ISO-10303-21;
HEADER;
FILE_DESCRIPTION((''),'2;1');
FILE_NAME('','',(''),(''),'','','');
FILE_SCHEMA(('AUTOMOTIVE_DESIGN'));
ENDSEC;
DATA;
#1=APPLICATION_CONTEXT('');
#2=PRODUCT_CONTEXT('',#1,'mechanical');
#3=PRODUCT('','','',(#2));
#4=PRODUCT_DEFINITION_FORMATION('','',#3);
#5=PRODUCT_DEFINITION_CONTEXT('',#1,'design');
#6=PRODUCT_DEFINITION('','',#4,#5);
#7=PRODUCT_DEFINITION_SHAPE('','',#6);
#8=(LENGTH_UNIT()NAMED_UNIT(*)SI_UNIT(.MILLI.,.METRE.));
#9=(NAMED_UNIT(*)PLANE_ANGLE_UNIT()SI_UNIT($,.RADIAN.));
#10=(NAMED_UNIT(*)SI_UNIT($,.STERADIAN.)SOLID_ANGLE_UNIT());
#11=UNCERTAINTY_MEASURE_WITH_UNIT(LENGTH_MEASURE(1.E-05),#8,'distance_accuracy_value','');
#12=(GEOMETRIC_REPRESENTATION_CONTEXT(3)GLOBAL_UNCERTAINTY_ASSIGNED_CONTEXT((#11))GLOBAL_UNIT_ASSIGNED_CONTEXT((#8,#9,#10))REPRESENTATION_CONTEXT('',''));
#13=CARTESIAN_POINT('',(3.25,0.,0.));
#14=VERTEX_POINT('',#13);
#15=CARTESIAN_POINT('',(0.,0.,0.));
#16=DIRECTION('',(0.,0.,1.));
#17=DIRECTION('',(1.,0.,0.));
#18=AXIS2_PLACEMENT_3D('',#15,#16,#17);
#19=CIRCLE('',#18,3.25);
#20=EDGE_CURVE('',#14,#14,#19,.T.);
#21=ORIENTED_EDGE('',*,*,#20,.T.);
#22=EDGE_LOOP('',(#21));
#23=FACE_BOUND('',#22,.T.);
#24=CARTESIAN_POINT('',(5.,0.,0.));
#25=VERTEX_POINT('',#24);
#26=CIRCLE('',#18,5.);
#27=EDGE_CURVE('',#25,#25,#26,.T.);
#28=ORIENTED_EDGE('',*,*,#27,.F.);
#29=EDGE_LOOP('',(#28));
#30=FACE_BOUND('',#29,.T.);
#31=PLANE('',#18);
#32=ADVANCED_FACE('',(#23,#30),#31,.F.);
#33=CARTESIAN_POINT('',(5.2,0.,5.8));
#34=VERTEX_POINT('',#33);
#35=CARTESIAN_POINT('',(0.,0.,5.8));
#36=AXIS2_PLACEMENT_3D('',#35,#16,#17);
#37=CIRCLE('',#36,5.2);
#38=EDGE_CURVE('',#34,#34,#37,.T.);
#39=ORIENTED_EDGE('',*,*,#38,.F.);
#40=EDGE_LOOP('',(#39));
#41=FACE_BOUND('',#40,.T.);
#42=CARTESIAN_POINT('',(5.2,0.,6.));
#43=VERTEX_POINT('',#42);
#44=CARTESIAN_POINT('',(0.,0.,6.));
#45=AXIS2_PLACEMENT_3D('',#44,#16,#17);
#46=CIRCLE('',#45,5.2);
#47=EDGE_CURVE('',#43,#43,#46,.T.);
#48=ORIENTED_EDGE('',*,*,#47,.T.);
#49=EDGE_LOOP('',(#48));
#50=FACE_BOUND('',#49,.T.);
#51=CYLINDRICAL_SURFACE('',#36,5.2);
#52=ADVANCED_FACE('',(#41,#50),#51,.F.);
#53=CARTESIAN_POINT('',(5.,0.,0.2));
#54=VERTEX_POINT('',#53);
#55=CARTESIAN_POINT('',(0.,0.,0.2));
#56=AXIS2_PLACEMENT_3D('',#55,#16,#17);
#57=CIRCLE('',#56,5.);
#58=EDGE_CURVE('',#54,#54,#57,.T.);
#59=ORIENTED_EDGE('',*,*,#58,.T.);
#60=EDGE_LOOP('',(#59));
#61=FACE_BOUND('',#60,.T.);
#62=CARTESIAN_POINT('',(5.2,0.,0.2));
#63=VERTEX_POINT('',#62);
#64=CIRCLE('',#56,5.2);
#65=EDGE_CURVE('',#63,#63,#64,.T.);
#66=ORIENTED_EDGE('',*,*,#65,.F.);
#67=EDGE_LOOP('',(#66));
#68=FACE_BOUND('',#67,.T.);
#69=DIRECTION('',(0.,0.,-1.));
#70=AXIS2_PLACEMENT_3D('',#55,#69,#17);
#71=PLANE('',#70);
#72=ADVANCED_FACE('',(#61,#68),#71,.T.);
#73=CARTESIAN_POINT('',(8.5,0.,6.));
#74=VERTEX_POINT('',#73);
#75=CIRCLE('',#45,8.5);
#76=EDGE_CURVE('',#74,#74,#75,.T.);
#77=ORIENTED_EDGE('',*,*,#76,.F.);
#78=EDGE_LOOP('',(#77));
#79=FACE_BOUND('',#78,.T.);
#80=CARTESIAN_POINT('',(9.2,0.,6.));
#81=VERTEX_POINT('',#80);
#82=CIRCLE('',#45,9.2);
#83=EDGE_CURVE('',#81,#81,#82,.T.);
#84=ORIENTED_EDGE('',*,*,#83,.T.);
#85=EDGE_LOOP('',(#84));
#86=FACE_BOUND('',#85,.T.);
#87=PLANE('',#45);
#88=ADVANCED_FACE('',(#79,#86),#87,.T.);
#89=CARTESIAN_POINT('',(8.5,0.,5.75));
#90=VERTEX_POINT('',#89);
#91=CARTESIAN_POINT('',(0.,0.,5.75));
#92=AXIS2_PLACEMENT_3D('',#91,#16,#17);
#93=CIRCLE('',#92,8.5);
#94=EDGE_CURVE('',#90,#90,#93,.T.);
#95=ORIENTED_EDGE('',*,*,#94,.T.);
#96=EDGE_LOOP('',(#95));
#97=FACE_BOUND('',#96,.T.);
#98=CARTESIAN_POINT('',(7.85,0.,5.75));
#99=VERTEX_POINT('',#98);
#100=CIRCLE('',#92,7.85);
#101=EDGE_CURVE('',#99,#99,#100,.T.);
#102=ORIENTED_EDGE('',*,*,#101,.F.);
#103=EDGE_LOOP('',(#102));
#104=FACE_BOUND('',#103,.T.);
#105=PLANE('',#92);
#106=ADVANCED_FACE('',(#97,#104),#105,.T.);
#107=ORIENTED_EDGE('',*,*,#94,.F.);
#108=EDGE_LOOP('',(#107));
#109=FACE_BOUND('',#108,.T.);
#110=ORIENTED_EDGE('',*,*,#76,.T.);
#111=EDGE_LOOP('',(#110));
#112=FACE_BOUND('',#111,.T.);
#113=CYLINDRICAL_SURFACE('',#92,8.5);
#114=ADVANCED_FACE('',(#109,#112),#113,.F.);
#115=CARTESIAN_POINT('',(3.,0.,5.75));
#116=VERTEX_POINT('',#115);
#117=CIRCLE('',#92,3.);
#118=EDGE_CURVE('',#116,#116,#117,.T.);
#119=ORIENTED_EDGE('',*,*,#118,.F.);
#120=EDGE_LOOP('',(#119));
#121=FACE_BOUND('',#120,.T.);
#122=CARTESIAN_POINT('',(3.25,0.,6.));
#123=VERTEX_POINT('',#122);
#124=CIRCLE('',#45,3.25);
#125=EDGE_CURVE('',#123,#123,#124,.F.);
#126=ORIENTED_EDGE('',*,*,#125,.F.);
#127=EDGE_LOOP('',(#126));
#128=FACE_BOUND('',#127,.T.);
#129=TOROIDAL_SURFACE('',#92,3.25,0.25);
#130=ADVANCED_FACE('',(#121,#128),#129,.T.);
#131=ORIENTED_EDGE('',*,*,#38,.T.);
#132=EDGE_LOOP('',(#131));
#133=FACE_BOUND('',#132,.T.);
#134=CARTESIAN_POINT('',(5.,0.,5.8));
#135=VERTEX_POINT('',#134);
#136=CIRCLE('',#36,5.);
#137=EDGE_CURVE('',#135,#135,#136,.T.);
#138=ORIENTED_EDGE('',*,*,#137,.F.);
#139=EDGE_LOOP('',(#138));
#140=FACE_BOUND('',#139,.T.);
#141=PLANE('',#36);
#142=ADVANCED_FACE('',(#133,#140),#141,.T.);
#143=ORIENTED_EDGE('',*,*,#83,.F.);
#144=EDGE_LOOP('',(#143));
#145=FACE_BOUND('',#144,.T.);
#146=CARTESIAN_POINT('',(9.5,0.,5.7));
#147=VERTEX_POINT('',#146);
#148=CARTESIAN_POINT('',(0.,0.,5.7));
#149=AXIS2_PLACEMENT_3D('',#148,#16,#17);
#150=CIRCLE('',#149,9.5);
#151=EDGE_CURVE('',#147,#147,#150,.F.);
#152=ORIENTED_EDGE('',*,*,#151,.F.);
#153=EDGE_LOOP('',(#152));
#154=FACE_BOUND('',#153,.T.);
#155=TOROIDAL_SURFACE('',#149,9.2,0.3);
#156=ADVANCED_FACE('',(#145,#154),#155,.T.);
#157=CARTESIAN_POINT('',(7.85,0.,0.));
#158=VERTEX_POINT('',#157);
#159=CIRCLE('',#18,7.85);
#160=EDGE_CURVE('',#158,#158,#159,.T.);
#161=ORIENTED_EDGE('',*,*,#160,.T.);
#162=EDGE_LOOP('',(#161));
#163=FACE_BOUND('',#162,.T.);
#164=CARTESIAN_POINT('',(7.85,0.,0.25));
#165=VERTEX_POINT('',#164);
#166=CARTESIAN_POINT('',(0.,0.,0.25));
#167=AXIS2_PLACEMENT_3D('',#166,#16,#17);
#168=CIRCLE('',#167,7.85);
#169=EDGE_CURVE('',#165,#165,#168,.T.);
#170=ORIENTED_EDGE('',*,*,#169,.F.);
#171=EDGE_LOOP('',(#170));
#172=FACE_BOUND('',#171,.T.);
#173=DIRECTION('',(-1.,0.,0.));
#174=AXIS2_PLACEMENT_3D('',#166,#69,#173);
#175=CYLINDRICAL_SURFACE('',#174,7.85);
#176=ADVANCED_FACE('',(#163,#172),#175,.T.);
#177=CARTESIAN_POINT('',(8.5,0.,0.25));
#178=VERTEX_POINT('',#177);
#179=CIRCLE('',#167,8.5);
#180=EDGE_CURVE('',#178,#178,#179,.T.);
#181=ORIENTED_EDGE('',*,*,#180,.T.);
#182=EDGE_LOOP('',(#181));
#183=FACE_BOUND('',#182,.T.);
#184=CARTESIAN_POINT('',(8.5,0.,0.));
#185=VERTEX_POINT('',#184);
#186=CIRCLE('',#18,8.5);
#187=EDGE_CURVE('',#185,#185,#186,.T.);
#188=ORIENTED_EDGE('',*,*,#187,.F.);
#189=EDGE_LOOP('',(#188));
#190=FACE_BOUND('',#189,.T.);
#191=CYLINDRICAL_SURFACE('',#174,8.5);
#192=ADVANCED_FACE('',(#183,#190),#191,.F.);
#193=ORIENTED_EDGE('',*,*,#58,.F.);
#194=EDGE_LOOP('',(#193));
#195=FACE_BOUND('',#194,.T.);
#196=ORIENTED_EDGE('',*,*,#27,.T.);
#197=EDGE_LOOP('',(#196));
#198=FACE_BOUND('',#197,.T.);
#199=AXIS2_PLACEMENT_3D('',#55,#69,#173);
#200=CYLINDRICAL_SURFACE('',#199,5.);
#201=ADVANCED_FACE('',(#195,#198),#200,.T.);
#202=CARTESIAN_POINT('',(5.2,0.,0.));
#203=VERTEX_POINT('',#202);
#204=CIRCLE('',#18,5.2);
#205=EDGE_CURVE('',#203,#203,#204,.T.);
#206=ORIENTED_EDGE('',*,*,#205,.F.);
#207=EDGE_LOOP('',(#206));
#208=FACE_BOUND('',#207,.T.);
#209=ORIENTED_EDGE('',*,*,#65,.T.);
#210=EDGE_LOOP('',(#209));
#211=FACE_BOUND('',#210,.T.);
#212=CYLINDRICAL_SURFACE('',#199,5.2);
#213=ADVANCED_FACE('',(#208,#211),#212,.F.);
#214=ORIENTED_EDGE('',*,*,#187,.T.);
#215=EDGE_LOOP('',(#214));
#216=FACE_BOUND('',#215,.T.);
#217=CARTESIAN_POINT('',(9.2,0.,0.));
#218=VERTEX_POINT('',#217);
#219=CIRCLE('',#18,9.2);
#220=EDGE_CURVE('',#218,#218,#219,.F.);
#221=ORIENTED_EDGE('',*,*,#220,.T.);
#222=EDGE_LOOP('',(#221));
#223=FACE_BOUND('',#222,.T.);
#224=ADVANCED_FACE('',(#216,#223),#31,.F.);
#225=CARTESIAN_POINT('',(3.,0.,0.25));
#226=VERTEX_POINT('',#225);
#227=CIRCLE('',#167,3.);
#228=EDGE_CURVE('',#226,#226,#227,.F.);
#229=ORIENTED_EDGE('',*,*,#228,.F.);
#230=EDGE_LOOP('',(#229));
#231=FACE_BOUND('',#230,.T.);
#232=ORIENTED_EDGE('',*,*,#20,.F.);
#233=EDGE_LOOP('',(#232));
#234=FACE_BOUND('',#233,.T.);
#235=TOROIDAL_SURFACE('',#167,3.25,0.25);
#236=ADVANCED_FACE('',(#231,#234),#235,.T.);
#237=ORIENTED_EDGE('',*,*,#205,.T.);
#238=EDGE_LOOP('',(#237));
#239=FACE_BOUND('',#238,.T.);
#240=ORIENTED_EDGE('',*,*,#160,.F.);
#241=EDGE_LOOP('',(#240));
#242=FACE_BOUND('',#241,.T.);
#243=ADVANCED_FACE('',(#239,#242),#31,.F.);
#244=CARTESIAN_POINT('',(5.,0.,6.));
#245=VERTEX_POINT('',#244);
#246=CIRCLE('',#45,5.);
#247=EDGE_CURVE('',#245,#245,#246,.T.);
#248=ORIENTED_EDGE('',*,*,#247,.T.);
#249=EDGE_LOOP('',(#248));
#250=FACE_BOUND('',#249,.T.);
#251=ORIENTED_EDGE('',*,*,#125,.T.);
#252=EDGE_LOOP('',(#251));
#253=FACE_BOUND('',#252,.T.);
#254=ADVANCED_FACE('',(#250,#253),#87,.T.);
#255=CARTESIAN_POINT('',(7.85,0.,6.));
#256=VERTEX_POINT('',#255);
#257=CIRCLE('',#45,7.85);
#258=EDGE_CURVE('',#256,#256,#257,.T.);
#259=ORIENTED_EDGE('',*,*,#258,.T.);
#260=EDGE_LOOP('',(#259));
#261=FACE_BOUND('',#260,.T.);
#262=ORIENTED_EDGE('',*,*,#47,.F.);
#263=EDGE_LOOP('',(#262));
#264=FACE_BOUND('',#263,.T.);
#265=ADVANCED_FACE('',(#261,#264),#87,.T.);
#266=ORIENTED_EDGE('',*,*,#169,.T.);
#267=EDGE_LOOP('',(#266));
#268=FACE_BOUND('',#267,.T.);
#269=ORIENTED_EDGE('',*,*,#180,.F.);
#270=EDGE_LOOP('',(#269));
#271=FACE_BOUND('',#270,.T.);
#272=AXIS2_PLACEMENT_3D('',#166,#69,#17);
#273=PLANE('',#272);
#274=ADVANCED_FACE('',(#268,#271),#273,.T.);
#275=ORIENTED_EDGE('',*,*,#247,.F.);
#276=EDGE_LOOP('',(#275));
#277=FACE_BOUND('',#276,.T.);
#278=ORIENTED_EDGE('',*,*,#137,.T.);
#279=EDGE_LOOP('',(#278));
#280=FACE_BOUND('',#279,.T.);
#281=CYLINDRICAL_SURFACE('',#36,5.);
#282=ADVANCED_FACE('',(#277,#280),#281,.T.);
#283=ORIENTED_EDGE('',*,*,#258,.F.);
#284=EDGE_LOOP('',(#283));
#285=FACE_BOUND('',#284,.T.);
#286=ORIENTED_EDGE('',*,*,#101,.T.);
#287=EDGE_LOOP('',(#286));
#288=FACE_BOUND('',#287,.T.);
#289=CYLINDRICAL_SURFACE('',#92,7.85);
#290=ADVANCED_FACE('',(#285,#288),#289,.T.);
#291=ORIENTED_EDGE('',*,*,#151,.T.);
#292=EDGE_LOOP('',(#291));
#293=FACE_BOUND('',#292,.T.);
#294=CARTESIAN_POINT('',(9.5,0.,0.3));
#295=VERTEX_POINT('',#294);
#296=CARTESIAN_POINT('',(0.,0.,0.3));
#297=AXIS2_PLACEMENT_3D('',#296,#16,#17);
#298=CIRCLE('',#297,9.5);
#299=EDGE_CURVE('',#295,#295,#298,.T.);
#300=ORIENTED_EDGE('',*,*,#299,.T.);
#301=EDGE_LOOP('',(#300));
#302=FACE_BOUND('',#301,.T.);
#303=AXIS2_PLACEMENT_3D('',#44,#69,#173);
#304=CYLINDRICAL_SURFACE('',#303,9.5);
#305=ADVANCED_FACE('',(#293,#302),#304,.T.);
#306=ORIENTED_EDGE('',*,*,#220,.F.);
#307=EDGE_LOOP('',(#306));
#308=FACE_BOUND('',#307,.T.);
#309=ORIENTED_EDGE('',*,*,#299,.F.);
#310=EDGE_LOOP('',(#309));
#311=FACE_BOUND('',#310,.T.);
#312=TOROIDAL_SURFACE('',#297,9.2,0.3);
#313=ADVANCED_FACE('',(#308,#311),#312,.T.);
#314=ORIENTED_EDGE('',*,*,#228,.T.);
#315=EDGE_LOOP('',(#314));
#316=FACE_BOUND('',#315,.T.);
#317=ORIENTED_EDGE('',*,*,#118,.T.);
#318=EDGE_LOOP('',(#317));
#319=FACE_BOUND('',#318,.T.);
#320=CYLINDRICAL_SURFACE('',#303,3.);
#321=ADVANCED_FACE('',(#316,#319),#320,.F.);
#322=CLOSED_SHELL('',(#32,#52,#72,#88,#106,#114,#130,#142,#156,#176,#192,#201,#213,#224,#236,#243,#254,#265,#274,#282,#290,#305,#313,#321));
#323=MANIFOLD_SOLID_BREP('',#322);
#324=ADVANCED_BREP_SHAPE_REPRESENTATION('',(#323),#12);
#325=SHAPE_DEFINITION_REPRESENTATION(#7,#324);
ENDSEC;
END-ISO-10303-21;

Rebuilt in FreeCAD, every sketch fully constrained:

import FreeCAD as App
import Part
import Sketcher
from FreeCAD import Vector


def edges_at(feature, points):
    """Names of the edges that pass closest to the given points."""
    edges = feature.Shape.Edges
    near = lambda p: min(range(len(edges)), key=lambda i: edges[i].distToShape(Part.Vertex(*p))[0])
    return sorted({f"Edge{near(p) + 1}" for p in points})

doc = App.newDocument("Part")
params = doc.addObject("Spreadsheet::Sheet", "Params")
for row, (alias, value) in enumerate([
    ("sketch1_diameter", "19 mm"),
    ("sketch1_diameter2", "6 mm"),
    ("pad1_length", "6 mm"),
    ("sketch2_diameter", "10 mm"),
    ("sketch2_diameter2", "10.4 mm"),
    ("pocket1_length", "0.2 mm"),
    ("sketch3_diameter", "17 mm"),
    ("sketch3_diameter2", "15.7 mm"),
    ("pocket2_length", "0.25 mm"),
    ("fillet_radius", "0.3 mm"),
    ("fillet2_radius", "0.25 mm"),
], start=1):
    params.set(f"A{row}", alias)
    params.set(f"B{row}", "=" + value)
    params.setAlias(f"B{row}", alias)

body = doc.addObject("PartDesign::Body", "Body")

sketch1 = body.newObject("Sketcher::SketchObject", "Sketch")
sketch1.AttachmentSupport = (doc.getObject("XY_Plane"), [""])
sketch1.MapMode = "FlatFace"
sketch1.addGeometry(Part.Circle(Vector(0, 0, 0), Vector(0, 0, 1), 9.5), False)
sketch1.addGeometry(Part.Circle(Vector(0, 0, 0), Vector(0, 0, 1), 3), False)
sketch1.addConstraint(Sketcher.Constraint("Coincident", 0, 3, -1, 1))
sketch1.addConstraint(Sketcher.Constraint("Coincident", 1, 3, -1, 1))
sketch1.addConstraint(Sketcher.Constraint("Diameter", 0, 19.0))
sketch1.addConstraint(Sketcher.Constraint("Diameter", 1, 6.0))
sketch1.setExpression("Constraints[2]", "Params.sketch1_diameter")
sketch1.setExpression("Constraints[3]", "Params.sketch1_diameter2")
pad1 = body.newObject("PartDesign::Pad", "Pad")
pad1.Profile = sketch1
pad1.setExpression("Length", "Params.pad1_length")

sketch2 = body.newObject("Sketcher::SketchObject", "Sketch001")
sketch2.AttachmentSupport = (doc.getObject("XY_Plane"), [""])
sketch2.MapMode = "FlatFace"
sketch2.AttachmentOffset = App.Placement(Vector(0, 0, 6), App.Rotation())
sketch2.addGeometry(Part.Circle(Vector(0, 0, 0), Vector(0, 0, 1), 5), False)
sketch2.addGeometry(Part.Circle(Vector(0, 0, 0), Vector(0, 0, 1), 5), False)
sketch2.addConstraint(Sketcher.Constraint("Coincident", 0, 3, -1, 1))
sketch2.addConstraint(Sketcher.Constraint("Coincident", 1, 3, -1, 1))
sketch2.addConstraint(Sketcher.Constraint("Diameter", 1, 10.0))
sketch2.addConstraint(Sketcher.Constraint("Diameter", 0, 10.4))
sketch2.setExpression("Constraints[2]", "Params.sketch2_diameter")
sketch2.setExpression("Constraints[3]", "Params.sketch2_diameter2")
pocket1 = body.newObject("PartDesign::Pocket", "Pocket")
pocket1.Profile = sketch2
pocket1.setExpression("Length", "Params.pocket1_length")

sketch3 = body.newObject("Sketcher::SketchObject", "Sketch002")
sketch3.AttachmentSupport = (doc.getObject("XY_Plane"), [""])
sketch3.MapMode = "FlatFace"
sketch3.AttachmentOffset = App.Placement(Vector(0, 0, 6), App.Rotation())
sketch3.addGeometry(Part.Circle(Vector(0, 0, 0), Vector(0, 0, 1), 8), False)
sketch3.addGeometry(Part.Circle(Vector(0, 0, 0), Vector(0, 0, 1), 8), False)
sketch3.addConstraint(Sketcher.Constraint("Coincident", 0, 3, -1, 1))
sketch3.addConstraint(Sketcher.Constraint("Coincident", 1, 3, -1, 1))
sketch3.addConstraint(Sketcher.Constraint("Diameter", 0, 17.0))
sketch3.addConstraint(Sketcher.Constraint("Diameter", 1, 15.7))
sketch3.setExpression("Constraints[2]", "Params.sketch3_diameter")
sketch3.setExpression("Constraints[3]", "Params.sketch3_diameter2")
pocket2 = body.newObject("PartDesign::Pocket", "Pocket001")
pocket2.Profile = sketch3
pocket2.setExpression("Length", "Params.pocket2_length")
doc.recompute()

datumplane = body.newObject("PartDesign::Plane", "DatumPlane")
datumplane.AttachmentSupport = (doc.getObject("XY_Plane"), [""])
datumplane.MapMode = "FlatFace"
datumplane.AttachmentOffset = App.Placement(Vector(0, 0, 3), App.Rotation())
mirrored = body.newObject("PartDesign::Mirrored", "Mirrored")
mirrored.Originals = [pocket1, pocket2]
mirrored.MirrorPlane = (datumplane, [""])
body.Tip = mirrored
doc.recompute()

fillet = body.newObject("PartDesign::Fillet", "Fillet")
fillet.Base = (mirrored, edges_at(mirrored, [(-9.5, 0, 0), (-9.5, 0, 6)]))
fillet.setExpression("Radius", "Params.fillet_radius")
doc.recompute()

fillet2 = body.newObject("PartDesign::Fillet", "Fillet001")
fillet2.Base = (fillet, edges_at(fillet, [(-3, 0, 0), (-3, 0, 6)]))
fillet2.setExpression("Radius", "Params.fillet2_radius")

doc.recompute()
